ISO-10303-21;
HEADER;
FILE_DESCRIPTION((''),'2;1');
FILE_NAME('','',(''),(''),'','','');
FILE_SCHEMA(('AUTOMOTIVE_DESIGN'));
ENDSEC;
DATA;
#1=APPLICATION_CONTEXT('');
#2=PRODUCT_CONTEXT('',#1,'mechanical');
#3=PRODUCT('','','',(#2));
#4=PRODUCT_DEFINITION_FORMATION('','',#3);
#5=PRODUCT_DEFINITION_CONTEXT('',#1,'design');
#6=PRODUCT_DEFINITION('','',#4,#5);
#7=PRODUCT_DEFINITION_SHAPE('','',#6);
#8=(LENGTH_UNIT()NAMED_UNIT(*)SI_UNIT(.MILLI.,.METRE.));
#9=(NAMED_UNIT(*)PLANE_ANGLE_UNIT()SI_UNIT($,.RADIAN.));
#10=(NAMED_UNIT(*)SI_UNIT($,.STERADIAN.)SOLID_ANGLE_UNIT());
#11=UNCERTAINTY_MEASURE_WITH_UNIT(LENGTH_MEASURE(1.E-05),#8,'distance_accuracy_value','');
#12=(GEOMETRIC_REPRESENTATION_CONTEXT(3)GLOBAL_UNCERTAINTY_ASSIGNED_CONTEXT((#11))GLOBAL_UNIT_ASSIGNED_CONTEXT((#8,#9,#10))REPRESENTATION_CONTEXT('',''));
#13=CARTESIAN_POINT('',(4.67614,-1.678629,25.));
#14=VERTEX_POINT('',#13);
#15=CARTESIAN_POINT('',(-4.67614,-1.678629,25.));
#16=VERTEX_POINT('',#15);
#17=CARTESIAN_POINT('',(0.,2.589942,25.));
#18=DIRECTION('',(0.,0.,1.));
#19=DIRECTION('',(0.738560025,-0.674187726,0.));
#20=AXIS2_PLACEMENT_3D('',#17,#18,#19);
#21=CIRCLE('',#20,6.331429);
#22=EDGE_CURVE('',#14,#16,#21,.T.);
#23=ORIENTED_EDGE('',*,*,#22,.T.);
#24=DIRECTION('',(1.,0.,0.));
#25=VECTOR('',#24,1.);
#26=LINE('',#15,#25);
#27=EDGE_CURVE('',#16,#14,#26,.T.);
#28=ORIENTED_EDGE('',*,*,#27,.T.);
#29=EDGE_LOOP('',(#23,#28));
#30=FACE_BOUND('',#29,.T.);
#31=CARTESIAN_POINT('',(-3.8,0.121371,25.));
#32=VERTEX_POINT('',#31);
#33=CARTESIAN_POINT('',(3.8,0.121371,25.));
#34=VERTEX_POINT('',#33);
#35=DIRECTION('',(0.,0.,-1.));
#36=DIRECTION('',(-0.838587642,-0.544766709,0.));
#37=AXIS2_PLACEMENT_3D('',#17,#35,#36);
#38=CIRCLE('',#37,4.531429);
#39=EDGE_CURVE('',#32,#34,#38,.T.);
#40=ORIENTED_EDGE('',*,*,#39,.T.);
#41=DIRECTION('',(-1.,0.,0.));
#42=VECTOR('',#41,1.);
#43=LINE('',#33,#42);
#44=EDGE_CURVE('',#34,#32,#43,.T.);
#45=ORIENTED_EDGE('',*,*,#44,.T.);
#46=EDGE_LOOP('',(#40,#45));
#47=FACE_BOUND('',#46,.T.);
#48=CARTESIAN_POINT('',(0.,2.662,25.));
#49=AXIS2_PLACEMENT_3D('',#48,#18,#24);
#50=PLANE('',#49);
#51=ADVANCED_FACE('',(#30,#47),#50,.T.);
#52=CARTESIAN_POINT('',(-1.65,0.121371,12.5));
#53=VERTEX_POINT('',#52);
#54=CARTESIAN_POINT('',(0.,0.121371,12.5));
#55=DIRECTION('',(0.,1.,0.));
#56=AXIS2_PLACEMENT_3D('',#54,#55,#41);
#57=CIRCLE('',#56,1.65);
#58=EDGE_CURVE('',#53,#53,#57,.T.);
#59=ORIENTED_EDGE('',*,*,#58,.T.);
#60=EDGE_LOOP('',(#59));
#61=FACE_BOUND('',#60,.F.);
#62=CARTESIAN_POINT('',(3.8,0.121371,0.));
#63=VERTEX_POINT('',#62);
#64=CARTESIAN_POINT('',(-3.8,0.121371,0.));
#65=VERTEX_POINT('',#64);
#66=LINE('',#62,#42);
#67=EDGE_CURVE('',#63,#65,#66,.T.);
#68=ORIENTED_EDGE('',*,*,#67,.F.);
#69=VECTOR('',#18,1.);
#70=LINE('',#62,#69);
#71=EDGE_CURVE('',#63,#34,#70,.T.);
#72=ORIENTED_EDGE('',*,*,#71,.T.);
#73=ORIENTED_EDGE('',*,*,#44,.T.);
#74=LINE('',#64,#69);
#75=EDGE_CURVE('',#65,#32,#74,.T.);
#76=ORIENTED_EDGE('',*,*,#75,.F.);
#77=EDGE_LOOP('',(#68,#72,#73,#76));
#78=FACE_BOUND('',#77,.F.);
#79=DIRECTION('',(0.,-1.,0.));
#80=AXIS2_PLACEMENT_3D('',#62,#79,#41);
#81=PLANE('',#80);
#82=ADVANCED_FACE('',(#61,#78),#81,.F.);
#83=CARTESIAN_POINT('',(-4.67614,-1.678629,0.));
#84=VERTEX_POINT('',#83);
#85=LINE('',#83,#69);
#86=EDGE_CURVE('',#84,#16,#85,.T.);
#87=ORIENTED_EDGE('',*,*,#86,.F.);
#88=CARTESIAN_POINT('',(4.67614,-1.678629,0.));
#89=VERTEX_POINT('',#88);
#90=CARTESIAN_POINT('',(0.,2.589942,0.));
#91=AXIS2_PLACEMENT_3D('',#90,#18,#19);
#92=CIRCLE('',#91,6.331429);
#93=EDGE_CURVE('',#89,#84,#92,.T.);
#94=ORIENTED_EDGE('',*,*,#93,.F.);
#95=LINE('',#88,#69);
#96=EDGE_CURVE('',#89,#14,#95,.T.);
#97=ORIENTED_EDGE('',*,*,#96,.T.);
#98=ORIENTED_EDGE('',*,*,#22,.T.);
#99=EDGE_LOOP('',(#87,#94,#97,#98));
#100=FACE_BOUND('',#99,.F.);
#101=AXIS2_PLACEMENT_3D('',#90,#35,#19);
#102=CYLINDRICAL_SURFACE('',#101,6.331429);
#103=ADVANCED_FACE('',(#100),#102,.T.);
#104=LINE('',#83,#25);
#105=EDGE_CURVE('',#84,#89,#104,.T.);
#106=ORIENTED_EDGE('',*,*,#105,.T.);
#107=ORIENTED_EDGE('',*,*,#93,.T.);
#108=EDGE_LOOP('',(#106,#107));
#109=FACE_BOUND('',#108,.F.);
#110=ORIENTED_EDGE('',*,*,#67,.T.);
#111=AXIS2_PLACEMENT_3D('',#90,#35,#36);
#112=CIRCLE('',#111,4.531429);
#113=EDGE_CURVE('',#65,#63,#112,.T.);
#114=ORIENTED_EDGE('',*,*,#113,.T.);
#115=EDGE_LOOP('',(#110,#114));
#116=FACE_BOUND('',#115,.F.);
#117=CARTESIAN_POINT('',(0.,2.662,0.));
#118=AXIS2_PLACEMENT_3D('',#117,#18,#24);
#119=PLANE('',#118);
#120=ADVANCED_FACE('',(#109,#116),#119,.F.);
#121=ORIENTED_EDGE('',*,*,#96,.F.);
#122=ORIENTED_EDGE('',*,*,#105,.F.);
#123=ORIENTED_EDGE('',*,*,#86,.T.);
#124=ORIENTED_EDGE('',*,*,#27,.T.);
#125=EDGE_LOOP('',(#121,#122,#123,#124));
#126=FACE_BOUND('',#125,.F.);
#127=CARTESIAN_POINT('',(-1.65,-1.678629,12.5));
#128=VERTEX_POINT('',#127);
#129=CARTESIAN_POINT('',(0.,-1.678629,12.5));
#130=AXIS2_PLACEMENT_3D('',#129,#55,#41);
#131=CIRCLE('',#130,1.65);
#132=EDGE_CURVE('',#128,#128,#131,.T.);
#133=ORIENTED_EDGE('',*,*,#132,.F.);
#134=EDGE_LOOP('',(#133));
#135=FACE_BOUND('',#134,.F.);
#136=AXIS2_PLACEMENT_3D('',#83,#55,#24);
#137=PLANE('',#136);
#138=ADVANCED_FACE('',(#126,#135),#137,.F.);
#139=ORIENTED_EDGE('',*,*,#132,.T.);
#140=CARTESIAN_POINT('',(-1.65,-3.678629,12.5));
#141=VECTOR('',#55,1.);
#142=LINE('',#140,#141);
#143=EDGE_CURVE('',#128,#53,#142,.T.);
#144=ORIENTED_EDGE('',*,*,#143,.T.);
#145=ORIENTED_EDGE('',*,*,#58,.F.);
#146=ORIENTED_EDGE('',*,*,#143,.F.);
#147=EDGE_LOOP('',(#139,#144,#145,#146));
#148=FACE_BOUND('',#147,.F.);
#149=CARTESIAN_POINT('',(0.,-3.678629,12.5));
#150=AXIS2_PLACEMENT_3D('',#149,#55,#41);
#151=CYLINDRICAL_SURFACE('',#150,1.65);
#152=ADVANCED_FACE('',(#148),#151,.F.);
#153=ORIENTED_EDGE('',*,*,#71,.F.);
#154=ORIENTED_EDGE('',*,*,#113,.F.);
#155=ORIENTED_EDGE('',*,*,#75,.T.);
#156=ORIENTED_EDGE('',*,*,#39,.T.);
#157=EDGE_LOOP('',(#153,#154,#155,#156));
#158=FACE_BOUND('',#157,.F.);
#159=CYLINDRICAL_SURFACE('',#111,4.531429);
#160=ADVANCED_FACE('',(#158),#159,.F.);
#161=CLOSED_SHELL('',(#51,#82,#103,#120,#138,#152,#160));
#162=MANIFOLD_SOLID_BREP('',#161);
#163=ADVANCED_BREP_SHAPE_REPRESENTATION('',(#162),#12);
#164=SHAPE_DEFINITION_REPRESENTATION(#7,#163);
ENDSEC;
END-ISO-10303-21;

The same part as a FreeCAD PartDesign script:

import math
import FreeCAD as App
import Part
import Sketcher
from FreeCAD import Vector

doc = App.newDocument("Part")
body = doc.addObject("PartDesign::Body", "Body")

sketch1 = body.newObject("Sketcher::SketchObject", "Sketch")
sketch1.AttachmentSupport = (doc.getObject("XY_Plane"), [""])
sketch1.MapMode = "FlatFace"
sketch1.addGeometry([
    Part.LineSegment(Vector(-4.7, -1.7, 0), Vector(4.7, -1.7, 0)),
    Part.ArcOfCircle(Part.Circle(Vector(0, 2.6, 0), Vector(0, 0, 1), 6.3), math.radians(-42), math.radians(222)),
    Part.ArcOfCircle(Part.Circle(Vector(0, 2.6, 0), Vector(0, 0, 1), 4.5), math.radians(-33), math.radians(213)),
    Part.LineSegment(Vector(3.8, 0.1, 0), Vector(-3.8, 0.1, 0)),
], False)
sketch1.addConstraint([
    Sketcher.Constraint("Coincident", 0, 1, 1, 2),
    Sketcher.Constraint("Coincident", 1, 1, 0, 2),
    Sketcher.Constraint("Coincident", 2, 1, 3, 1),
    Sketcher.Constraint("Coincident", 3, 2, 2, 2),
    Sketcher.Constraint("Horizontal", 0),
    Sketcher.Constraint("Horizontal", 3),
    Sketcher.Constraint("Coincident", 2, 3, 1, 3),
    Sketcher.Constraint("PointOnObject", 1, 3, -2),
    Sketcher.Constraint("DistanceX", 3, 2, 3, 1, 7.6),
    Sketcher.Constraint("DistanceY", 1, 1, 2, 1, 1.8),
    Sketcher.Constraint("Radius", 1, 6.331429),
    Sketcher.Constraint("Radius", 2, 4.531429),
    Sketcher.Constraint("DistanceY", 0, 1, -1, 1, 1.678629),
])
pad1 = body.newObject("PartDesign::Pad", "Pad")
pad1.Profile = sketch1
pad1.Length = 25

sketch2 = body.newObject("Sketcher::SketchObject", "Sketch001")
sketch2.AttachmentSupport = (doc.getObject("XZ_Plane"), [""])
sketch2.MapMode = "FlatFace"
sketch2.AttachmentOffset = App.Placement(Vector(0, 0, 1.678629), App.Rotation())
sketch2.addGeometry(Part.Circle(Vector(0, 12.5, 0), Vector(0, 0, 1), 1.6), False)
sketch2.addConstraint([
    Sketcher.Constraint("PointOnObject", 0, 3, -2),
    Sketcher.Constraint("Diameter", 0, 3.3),
    Sketcher.Constraint("DistanceY", -1, 1, 0, 3, 12.5),
])
doc.recompute()
hole = body.newObject("PartDesign::Hole", "Hole")
hole.Profile = sketch2
hole.ThreadType = "None"
hole.Diameter = 3.3
hole.DepthType = "Dimension"
hole.Depth = 2
hole.DrillPoint = "Angled"
hole.DrillPointAngle = 118

doc.recompute()
